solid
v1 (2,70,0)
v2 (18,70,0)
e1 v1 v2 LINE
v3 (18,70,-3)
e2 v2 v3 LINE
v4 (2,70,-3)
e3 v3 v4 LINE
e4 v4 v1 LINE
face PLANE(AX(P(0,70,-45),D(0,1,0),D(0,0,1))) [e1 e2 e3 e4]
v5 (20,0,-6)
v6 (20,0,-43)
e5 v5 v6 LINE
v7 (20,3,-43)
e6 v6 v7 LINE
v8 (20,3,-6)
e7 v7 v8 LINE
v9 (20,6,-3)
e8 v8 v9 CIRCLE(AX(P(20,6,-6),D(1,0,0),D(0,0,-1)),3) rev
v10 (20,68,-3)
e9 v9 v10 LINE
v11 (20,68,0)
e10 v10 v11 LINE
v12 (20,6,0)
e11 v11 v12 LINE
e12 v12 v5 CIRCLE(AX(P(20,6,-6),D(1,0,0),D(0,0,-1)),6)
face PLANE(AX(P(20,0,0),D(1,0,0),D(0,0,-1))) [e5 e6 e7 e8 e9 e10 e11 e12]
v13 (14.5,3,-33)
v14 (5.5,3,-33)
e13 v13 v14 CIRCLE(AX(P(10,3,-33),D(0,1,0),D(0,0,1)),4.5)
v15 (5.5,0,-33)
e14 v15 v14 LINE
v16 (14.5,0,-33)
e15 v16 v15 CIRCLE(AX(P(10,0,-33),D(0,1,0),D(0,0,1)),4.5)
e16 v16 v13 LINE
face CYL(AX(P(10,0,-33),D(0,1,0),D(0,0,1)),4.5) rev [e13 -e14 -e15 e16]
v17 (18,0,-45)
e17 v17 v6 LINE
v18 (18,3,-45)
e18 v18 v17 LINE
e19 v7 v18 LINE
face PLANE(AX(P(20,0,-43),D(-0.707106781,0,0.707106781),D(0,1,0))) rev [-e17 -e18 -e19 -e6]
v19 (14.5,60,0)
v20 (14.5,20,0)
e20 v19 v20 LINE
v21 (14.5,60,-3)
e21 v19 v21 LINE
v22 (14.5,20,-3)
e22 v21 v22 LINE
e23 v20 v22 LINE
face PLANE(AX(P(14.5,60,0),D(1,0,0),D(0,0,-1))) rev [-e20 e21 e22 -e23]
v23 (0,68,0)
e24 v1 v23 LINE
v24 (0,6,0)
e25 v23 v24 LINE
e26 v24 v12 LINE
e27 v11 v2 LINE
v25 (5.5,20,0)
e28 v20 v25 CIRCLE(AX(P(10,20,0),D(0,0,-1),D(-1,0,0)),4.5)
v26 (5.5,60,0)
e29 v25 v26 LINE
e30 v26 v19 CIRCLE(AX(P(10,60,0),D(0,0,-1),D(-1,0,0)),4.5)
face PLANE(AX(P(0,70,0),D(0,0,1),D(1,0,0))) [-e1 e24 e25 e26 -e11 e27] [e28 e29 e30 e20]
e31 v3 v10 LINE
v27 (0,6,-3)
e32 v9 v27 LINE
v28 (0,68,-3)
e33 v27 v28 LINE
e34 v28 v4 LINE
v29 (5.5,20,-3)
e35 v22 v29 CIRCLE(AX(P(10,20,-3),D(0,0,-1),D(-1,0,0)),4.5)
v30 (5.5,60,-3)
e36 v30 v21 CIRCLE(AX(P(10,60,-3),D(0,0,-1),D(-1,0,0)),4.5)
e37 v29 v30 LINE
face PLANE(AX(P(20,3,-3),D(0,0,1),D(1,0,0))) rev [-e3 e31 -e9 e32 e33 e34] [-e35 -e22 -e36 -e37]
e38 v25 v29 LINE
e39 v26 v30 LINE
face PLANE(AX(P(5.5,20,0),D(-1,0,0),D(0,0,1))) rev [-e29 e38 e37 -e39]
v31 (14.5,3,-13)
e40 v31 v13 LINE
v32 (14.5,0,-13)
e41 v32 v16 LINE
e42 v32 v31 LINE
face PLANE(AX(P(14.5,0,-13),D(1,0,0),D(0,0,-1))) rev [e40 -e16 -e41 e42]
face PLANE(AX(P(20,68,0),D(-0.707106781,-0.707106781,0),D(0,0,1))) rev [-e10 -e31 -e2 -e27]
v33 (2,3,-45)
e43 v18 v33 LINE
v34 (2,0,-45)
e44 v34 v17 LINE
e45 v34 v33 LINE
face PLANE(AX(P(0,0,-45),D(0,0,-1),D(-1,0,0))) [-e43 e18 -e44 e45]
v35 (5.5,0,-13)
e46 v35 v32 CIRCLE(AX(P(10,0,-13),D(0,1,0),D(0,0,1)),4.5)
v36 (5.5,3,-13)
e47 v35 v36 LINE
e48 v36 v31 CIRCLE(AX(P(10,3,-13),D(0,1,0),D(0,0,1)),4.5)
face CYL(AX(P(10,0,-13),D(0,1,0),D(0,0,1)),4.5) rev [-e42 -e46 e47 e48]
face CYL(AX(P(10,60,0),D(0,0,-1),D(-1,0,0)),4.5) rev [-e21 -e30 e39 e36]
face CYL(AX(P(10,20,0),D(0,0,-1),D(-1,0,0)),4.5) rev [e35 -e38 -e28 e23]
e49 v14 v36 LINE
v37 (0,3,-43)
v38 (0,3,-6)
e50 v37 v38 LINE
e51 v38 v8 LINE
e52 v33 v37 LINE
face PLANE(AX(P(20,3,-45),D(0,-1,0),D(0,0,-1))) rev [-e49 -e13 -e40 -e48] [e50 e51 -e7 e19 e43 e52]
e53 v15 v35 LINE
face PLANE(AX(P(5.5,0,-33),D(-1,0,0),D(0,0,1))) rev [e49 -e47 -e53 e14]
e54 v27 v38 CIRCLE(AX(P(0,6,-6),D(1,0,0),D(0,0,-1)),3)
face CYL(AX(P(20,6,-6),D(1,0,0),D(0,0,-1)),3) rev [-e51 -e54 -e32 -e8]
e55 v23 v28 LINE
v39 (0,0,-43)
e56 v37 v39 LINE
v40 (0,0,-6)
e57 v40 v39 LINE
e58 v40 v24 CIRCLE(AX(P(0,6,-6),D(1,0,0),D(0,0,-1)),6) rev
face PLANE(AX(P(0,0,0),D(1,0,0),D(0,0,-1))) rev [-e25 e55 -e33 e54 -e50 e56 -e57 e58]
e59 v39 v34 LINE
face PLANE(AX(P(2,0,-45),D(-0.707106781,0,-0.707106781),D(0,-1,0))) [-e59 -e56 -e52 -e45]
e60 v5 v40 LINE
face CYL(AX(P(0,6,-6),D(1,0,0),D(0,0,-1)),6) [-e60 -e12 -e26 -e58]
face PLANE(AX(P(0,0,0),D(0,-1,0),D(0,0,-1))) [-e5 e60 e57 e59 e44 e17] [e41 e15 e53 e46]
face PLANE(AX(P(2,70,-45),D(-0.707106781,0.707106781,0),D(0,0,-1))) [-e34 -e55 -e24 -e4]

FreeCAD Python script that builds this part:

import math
import FreeCAD as App
import Part
import Sketcher
from FreeCAD import Vector
Q = App.Units.Quantity


def edges_at(feature, points):
    """Names of the edges that pass closest to the given points."""
    edges = feature.Shape.Edges
    near = lambda p: min(range(len(edges)), key=lambda i: edges[i].distToShape(Part.Vertex(*p))[0])
    return sorted({f"Edge{near(p) + 1}" for p in points})


def add_polygon(sketch, points):
    """Adds a closed chain of lines whose ends are joined by coincident constraints."""
    first, n = sketch.GeometryCount, len(points)
    for a, b in zip(points, points[1:] + points[:1]):
        sketch.addGeometry(Part.LineSegment(App.Vector(*a, 0), App.Vector(*b, 0)), False)
    for i in range(n):
        sketch.addConstraint(Sketcher.Constraint("Coincident", first + i, 2, first + (i + 1) % n, 1))

doc = App.newDocument("Part")
params = doc.addObject("Spreadsheet::Sheet", "Params")
for row, (alias, value) in enumerate([
    ("sketch1_width", "70 mm"),
    ("sketch1_height", "45 mm"),
    ("pad1_length", "20 mm"),
    ("sketch2_width", "67 mm"),
    ("sketch2_height", "42 mm"),
    ("sketch3_radius", "4.5 mm"),
    ("sketch3_height", "20 mm"),
    ("sketch4_radius", "4.5 mm"),
    ("sketch4_height", "40 mm"),
    ("chamfer_size", "2 mm"),
    ("fillet_radius", "3 mm"),
    ("fillet2_radius", "6 mm"),
], start=1):
    params.set(f"A{row}", alias)
    params.set(f"B{row}", "=" + value)
    params.setAlias(f"B{row}", alias)

body = doc.addObject("PartDesign::Body", "Body")

# Sketch on YZ plane
sketch1 = doc.addObject("Sketcher::SketchObject", "Sketch")
body.addObject(sketch1)
sketch1.AttachmentSupport = (doc.YZ_Plane, [""])
sketch1.MapMode = "FlatFace"
sketch1.AttachmentOffset = App.Placement(Vector(0, 0, 20), App.Rotation())
add_polygon(sketch1, [(70, 0), (0, 0), (0, -45), (70, -45)])  # lines 0-3
sketch1.addConstraint([
    Sketcher.Constraint("Horizontal", 0),
    Sketcher.Constraint("Vertical", 1),
    Sketcher.Constraint("Horizontal", 2),
    Sketcher.Constraint("Vertical", 3),
    Sketcher.Constraint("Coincident", 0, 2, -1, 1),
    Sketcher.Constraint("DistanceX", 0, 2, 0, 1, Q("70 mm")),
    Sketcher.Constraint("DistanceY", 1, 2, 1, 1, Q("45 mm")),
])
sketch1.setExpression("Constraints[9]", "Params.sketch1_width")
sketch1.setExpression("Constraints[10]", "Params.sketch1_height")
pad1 = doc.addObject("PartDesign::Pad", "Pad")
body.addObject(pad1)
pad1.Profile = sketch1
pad1.setExpression("Length", "Params.pad1_length")
pad1.Reversed = True

# Sketch on YZ plane
sketch2 = doc.addObject("Sketcher::SketchObject", "Sketch001")
body.addObject(sketch2)
sketch2.AttachmentSupport = (doc.YZ_Plane, [""])
sketch2.MapMode = "FlatFace"
add_polygon(sketch2, [(70, -45), (3, -45), (3, -3), (70, -3)])  # lines 0-3
sketch2.addConstraint([
    Sketcher.Constraint("Horizontal", 0),
    Sketcher.Constraint("Vertical", 1),
    Sketcher.Constraint("Horizontal", 2),
    Sketcher.Constraint("Vertical", 3),
    Sketcher.Constraint("DistanceX", 0, 2, 0, 1, Q("67 mm")),
    Sketcher.Constraint("DistanceY", 1, 1, 1, 2, Q("42 mm")),
    Sketcher.Constraint("DistanceX", -1, 1, 0, 2, Q("3 mm")),
    Sketcher.Constraint("DistanceY", 0, 2, -1, 1, Q("45 mm")),
])
sketch2.setExpression("Constraints[8]", "Params.sketch2_width")
sketch2.setExpression("Constraints[9]", "Params.sketch2_height")
pocket1 = doc.addObject("PartDesign::Pocket", "Pocket")
body.addObject(pocket1)
pocket1.Profile = sketch2
pocket1.Type = "ThroughAll"
pocket1.Reversed = True

# Sketch on XZ plane
sketch3 = doc.addObject("Sketcher::SketchObject", "Sketch002")
body.addObject(sketch3)
sketch3.AttachmentSupport = (doc.XZ_Plane, [""])
sketch3.MapMode = "FlatFace"
sketch3.AttachmentOffset = App.Placement(Vector(0, 0, -3), App.Rotation())
sketch3.addGeometry([
    Part.LineSegment(Vector(5.5, -33, 0), Vector(5.5, -13, 0)),
    Part.ArcOfCircle(Part.Circle(Vector(10, -13, 0), Vector(0, 0, 1), 4.5), math.radians(0), math.radians(180)),
    Part.LineSegment(Vector(14.5, -13, 0), Vector(14.5, -33, 0)),
    Part.ArcOfCircle(Part.Circle(Vector(10, -33, 0), Vector(0, 0, 1), 4.5), math.radians(180), math.radians(360)),
], False)
sketch3.addConstraint([
    Sketcher.Constraint("Tangent", 0, 2, 1, 2),
    Sketcher.Constraint("Tangent", 1, 1, 2, 1),
    Sketcher.Constraint("Tangent", 2, 2, 3, 2),
    Sketcher.Constraint("Tangent", 3, 1, 0, 1),
    Sketcher.Constraint("Vertical", 0),
    Sketcher.Constraint("Vertical", 2),
    Sketcher.Constraint("Radius", 1, Q("4.5 mm")),
    Sketcher.Constraint("DistanceY", 0, 1, 0, 2, Q("20 mm")),
    Sketcher.Constraint("DistanceX", -1, 1, 1, 3, Q("10 mm")),
    Sketcher.Constraint("DistanceY", 1, 3, -1, 1, Q("13 mm")),
])
sketch3.setExpression("Constraints[6]", "Params.sketch3_radius")
sketch3.setExpression("Constraints[7]", "Params.sketch3_height")
pocket2 = doc.addObject("PartDesign::Pocket", "Pocket001")
body.addObject(pocket2)
pocket2.Profile = sketch3
pocket2.Type = "ThroughAll"
pocket2.Reversed = True

# Sketch on XY plane
sketch4 = doc.addObject("Sketcher::SketchObject", "Sketch003")
body.addObject(sketch4)
sketch4.AttachmentSupport = (doc.XY_Plane, [""])
sketch4.MapMode = "FlatFace"
sketch4.AttachmentOffset = App.Placement(Vector(0, 0, -3), App.Rotation())
sketch4.addGeometry([
    Part.LineSegment(Vector(14.5, 60, 0), Vector(14.5, 20, 0)),
    Part.ArcOfCircle(Part.Circle(Vector(10, 20, 0), Vector(0, 0, 1), 4.5), math.radians(180), math.radians(360)),
    Part.LineSegment(Vector(5.5, 20, 0), Vector(5.5, 60, 0)),
    Part.ArcOfCircle(Part.Circle(Vector(10, 60, 0), Vector(0, 0, 1), 4.5), math.radians(0), math.radians(180)),
], False)
sketch4.addConstraint([
    Sketcher.Constraint("Tangent", 0, 2, 1, 2),
    Sketcher.Constraint("Tangent", 1, 1, 2, 1),
    Sketcher.Constraint("Tangent", 2, 2, 3, 2),
    Sketcher.Constraint("Tangent", 3, 1, 0, 1),
    Sketcher.Constraint("Vertical", 0),
    Sketcher.Constraint("Vertical", 2),
    Sketcher.Constraint("Radius", 1, Q("4.5 mm")),
    Sketcher.Constraint("DistanceY", 0, 2, 0, 1, Q("40 mm")),
    Sketcher.Constraint("DistanceX", -1, 1, 1, 3, Q("10 mm")),
    Sketcher.Constraint("DistanceY", -1, 1, 1, 3, Q("20 mm")),
])
sketch4.setExpression("Constraints[6]", "Params.sketch4_radius")
sketch4.setExpression("Constraints[7]", "Params.sketch4_height")
pocket3 = doc.addObject("PartDesign::Pocket", "Pocket002")
body.addObject(pocket3)
pocket3.Profile = sketch4
pocket3.Type = "ThroughAll"
pocket3.Reversed = True
doc.recompute()

chamfer = doc.addObject("PartDesign::Chamfer", "Chamfer")
body.addObject(chamfer)
chamfer.Base = (pocket3, edges_at(pocket3, [
    (0, 1.5, -45),
    (20, 70, -1.5),
    (0, 70, -1.5),
    (20, 1.5, -45),
]))
chamfer.setExpression("Size", "Params.chamfer_size")
doc.recompute()

fillet = doc.addObject("PartDesign::Fillet", "Fillet")
body.addObject(fillet)
fillet.Base = (chamfer, edges_at(chamfer, [(10, 3, -3)]))
fillet.setExpression("Radius", "Params.fillet_radius")
doc.recompute()

fillet2 = doc.addObject("PartDesign::Fillet", "Fillet001")
body.addObject(fillet2)
fillet2.Base = (fillet, edges_at(fillet, [(10, 0, 0)]))
fillet2.setExpression("Radius", "Params.fillet2_radius")

doc.recompute()
